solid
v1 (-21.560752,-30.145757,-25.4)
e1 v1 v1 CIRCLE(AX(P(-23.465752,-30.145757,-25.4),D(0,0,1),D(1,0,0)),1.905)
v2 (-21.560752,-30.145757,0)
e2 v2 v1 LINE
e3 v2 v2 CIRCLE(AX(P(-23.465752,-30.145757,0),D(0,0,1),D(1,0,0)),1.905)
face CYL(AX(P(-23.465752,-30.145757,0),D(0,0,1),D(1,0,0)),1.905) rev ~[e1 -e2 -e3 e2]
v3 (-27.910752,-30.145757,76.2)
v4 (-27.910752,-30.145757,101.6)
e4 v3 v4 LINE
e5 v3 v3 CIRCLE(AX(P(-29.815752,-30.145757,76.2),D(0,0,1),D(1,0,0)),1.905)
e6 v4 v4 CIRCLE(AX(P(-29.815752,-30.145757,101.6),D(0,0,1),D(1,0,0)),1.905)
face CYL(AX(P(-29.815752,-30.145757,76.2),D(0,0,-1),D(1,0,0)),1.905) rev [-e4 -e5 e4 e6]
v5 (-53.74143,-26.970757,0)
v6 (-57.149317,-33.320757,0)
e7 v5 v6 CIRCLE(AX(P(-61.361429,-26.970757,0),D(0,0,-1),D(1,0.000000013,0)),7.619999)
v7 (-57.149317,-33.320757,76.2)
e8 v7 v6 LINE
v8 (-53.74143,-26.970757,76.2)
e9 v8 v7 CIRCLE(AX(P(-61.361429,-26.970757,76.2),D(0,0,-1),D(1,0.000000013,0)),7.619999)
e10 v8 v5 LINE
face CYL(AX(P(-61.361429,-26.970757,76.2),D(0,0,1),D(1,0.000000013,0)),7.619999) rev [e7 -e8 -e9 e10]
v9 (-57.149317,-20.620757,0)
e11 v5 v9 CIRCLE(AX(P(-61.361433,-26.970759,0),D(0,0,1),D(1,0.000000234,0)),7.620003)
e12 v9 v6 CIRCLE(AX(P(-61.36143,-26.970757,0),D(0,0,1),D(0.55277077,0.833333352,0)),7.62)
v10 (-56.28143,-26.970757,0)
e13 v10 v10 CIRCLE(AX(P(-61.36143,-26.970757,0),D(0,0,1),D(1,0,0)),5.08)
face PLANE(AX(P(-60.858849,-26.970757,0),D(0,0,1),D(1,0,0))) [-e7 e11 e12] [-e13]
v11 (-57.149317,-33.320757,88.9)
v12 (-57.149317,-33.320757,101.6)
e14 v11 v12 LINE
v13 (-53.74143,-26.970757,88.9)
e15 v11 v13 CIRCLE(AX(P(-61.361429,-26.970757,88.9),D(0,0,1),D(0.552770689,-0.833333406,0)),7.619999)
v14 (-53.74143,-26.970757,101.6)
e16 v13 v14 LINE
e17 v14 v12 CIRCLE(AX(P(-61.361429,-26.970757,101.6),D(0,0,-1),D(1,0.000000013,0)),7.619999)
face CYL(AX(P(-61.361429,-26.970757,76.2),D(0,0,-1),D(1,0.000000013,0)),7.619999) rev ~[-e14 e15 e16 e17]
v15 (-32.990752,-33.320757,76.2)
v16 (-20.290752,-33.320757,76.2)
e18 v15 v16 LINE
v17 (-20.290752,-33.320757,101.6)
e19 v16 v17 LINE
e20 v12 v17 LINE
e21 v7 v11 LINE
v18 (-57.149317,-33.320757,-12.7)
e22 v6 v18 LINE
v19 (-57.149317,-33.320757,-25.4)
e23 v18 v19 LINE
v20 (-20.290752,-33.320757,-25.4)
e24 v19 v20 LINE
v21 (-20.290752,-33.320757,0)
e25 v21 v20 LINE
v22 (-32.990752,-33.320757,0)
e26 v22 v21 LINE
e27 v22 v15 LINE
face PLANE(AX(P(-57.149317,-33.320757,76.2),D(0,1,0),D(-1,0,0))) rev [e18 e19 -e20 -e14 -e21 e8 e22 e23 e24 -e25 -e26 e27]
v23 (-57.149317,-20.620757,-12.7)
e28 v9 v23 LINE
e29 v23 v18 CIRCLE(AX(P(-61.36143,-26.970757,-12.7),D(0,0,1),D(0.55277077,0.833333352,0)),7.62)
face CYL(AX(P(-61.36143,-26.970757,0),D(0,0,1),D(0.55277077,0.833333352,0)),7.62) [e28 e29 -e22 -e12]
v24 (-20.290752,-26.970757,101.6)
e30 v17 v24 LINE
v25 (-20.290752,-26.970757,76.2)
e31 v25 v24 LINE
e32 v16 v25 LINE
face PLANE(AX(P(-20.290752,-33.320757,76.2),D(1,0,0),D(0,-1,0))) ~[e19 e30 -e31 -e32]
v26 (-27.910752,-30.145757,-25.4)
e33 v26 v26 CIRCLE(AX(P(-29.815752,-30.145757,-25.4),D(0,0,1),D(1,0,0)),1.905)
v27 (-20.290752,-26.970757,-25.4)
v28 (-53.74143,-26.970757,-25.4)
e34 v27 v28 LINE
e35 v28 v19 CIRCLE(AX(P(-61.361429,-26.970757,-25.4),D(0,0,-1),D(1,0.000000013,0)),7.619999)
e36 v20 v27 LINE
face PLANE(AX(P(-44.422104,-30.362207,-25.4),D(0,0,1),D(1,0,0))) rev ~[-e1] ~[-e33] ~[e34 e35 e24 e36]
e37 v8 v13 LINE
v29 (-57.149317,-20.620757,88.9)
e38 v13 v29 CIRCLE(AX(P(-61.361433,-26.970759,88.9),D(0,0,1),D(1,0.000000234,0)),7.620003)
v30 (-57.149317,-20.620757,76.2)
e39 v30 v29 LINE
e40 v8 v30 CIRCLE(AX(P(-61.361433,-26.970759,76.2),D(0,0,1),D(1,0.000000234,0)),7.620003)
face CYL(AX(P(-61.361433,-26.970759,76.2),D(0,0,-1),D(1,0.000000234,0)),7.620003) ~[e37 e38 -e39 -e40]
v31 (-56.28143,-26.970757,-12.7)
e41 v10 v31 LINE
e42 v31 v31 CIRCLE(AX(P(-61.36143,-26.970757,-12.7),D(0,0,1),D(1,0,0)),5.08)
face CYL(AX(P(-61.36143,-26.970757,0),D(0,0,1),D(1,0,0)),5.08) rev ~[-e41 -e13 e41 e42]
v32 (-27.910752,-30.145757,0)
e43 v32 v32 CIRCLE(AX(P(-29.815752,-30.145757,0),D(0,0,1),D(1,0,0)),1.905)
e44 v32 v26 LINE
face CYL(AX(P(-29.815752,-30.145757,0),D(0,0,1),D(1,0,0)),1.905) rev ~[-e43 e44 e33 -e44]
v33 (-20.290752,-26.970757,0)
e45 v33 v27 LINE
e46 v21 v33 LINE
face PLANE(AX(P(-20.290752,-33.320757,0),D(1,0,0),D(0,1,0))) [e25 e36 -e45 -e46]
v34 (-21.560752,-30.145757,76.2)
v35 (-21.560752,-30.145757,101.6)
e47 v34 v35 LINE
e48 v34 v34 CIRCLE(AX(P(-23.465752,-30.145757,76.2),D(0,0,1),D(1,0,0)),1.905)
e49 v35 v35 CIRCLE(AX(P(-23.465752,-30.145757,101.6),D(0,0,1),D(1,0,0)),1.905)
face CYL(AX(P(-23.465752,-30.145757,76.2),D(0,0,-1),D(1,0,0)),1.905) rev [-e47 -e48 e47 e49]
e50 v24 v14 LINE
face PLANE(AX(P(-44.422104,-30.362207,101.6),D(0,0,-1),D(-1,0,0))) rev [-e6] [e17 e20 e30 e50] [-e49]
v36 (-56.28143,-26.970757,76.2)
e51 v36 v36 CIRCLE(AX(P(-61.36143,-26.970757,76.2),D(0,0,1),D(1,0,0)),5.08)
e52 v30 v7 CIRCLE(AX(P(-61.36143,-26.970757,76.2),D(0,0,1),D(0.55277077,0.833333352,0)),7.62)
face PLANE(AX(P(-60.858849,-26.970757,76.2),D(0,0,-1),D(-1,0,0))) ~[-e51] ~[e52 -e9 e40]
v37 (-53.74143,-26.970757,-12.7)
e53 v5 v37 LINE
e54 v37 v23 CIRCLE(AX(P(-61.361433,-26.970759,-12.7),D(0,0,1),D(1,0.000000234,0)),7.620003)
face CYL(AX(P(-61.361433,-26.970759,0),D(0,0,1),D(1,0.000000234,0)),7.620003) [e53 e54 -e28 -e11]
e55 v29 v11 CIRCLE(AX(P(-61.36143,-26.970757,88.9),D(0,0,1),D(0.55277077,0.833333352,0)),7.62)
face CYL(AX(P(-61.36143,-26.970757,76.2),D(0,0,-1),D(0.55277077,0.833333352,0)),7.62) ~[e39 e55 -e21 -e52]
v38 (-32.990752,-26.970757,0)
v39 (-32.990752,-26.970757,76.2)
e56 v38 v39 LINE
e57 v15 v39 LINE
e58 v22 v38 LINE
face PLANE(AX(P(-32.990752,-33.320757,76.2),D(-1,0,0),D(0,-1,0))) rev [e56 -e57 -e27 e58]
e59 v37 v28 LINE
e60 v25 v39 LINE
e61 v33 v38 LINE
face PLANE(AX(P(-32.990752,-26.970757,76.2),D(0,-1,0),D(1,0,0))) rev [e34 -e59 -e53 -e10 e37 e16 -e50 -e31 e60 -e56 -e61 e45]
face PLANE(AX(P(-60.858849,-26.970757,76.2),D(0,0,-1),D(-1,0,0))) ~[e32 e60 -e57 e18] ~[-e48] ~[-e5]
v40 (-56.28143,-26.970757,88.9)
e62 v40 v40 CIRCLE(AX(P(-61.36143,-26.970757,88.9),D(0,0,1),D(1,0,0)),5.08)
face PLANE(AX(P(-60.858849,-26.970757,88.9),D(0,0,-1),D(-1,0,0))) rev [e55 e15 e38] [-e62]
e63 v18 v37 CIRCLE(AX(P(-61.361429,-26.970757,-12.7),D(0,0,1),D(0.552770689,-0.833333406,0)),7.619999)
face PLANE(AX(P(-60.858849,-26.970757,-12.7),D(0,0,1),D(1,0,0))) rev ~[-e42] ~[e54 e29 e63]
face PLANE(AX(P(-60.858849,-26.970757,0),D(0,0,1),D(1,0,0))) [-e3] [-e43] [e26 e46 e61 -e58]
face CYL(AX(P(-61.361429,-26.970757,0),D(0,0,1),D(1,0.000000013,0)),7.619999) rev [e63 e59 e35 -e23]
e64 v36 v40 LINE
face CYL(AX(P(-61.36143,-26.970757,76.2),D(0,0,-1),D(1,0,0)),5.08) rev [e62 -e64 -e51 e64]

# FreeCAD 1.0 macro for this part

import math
import FreeCAD as App
import Part
import Sketcher
from FreeCAD import Vector
Q = App.Units.Quantity

doc = App.newDocument("Part")
body = doc.addObject("PartDesign::Body", "Body")

# Sketch on XY plane
sketch1 = body.newObject("Sketcher::SketchObject", "Sketch")
sketch1.AttachmentSupport = (doc.getObject("XY_Plane"), [""])
sketch1.MapMode = "FlatFace"
sketch1.addGeometry(Part.LineSegment(Vector(-57.1, -33.3, 0), Vector(-20.3, -33.3, 0)), False)
sketch1.addGeometry(Part.LineSegment(Vector(-20.3, -33.3, 0), Vector(-20.3, -27, 0)), False)
sketch1.addGeometry(Part.LineSegment(Vector(-20.3, -27, 0), Vector(-53.7, -27, 0)), False)
sketch1.addGeometry(Part.ArcOfCircle(Part.Circle(Vector(-61.4, -27, 0), Vector(0, 0, 1), 7.6), math.radians(-56), math.radians(0)), False)
sketch1.addGeometry(Part.Circle(Vector(-29.8, -30.1, 0), Vector(0, 0, 1), 1.9), False)
sketch1.addGeometry(Part.Circle(Vector(-23.5, -30.1, 0), Vector(0, 0, 1), 1.9), False)
sketch1.addConstraint(Sketcher.Constraint("Coincident", 0, 2, 1, 1))
sketch1.addConstraint(Sketcher.Constraint("Coincident", 1, 2, 2, 1))
sketch1.addConstraint(Sketcher.Constraint("Coincident", 2, 2, 3, 2))
sketch1.addConstraint(Sketcher.Constraint("Coincident", 3, 1, 0, 1))
sketch1.addConstraint(Sketcher.Constraint("Horizontal", 0))
sketch1.addConstraint(Sketcher.Constraint("Vertical", 1))
sketch1.addConstraint(Sketcher.Constraint("Horizontal", 2))
sketch1.addConstraint(Sketcher.Constraint("Equal", 4, 5))
sketch1.addConstraint(Sketcher.Constraint("Horizontal", 4, 3, 5, 3))
sketch1.addConstraint(Sketcher.Constraint("Horizontal", 3, 3, 1, 2))
sketch1.addConstraint(Sketcher.Constraint("Radius", 3, Q("0.3 in")))
sketch1.addConstraint(Sketcher.Constraint("Diameter", 4, Q("0.15 in")))
sketch1.addConstraint(Sketcher.Constraint("DistanceY", 1, 1, 1, 2, Q("0.25 in")))
sketch1.addConstraint(Sketcher.Constraint("DistanceX", 4, 3, 5, 3, Q("0.25 in")))
sketch1.addConstraint(Sketcher.Constraint("DistanceY", 4, 3, 3, 3, Q("0.125 in")))
sketch1.addConstraint(Sketcher.Constraint("DistanceX", 5, 3, 0, 2, Q("0.125 in")))
sketch1.addConstraint(Sketcher.Constraint("DistanceX", 0, 1, 0, 2, 36.858565))
sketch1.addConstraint(Sketcher.Constraint("DistanceX", 3, 3, -1, 1, 61.361429))
sketch1.addConstraint(Sketcher.Constraint("DistanceY", 3, 3, -1, 1, 26.970757))
pad1 = body.newObject("PartDesign::Pad", "Pad")
pad1.Profile = sketch1
pad1.Length = Q("1 in")
pad1.Reversed = True

# Sketch on XY plane
sketch2 = body.newObject("Sketcher::SketchObject", "Sketch001")
sketch2.AttachmentSupport = (doc.getObject("XY_Plane"), [""])
sketch2.MapMode = "FlatFace"
sketch2.addGeometry(Part.ArcOfCircle(Part.Circle(Vector(-61, -27, 0), Vector(0, 0, 1), 8), math.radians(56), math.radians(304)), False)
sketch2.addGeometry(Part.ArcOfCircle(Part.Circle(Vector(-61, -27, 0), Vector(0, 0, 1), 8), math.radians(-56), math.radians(0)), False)
sketch2.addGeometry(Part.ArcOfCircle(Part.Circle(Vector(-61, -27, 0), Vector(0, 0, 1), 8), math.radians(0), math.radians(56)), False)
sketch2.addGeometry(Part.Circle(Vector(-61, -27, 0), Vector(0, 0, 1), 5), False)
sketch2.addConstraint(Sketcher.Constraint("Tangent", 0, 2, 1, 1))
sketch2.addConstraint(Sketcher.Constraint("Tangent", 1, 2, 2, 1))
sketch2.addConstraint(Sketcher.Constraint("Tangent", 2, 2, 0, 1))
sketch2.addConstraint(Sketcher.Constraint("Coincident", 3, 3, 0, 3))
sketch2.addConstraint(Sketcher.Constraint("Horizontal", 3, 3, 1, 2))
sketch2.addConstraint(Sketcher.Constraint("Vertical", 0, 2, 2, 2))
sketch2.addConstraint(Sketcher.Constraint("Diameter", 3, Q("0.4 in")))
sketch2.addConstraint(Sketcher.Constraint("Radius", 0, Q("0.3 in")))
sketch2.addConstraint(Sketcher.Constraint("DistanceY", 0, 2, 1, 3, Q("0.25 in")))
sketch2.addConstraint(Sketcher.Constraint("DistanceX", 0, 3, -1, 1, 61.36143))
sketch2.addConstraint(Sketcher.Constraint("DistanceY", 2, 3, -1, 1, 26.970759))
pad2 = body.newObject("PartDesign::Pad", "Pad001")
pad2.Profile = sketch2
pad2.Length = Q("0.5 in")
pad2.Reversed = True

# Sketch on XY plane
sketch3 = body.newObject("Sketcher::SketchObject", "Sketch002")
sketch3.AttachmentSupport = (doc.getObject("XY_Plane"), [""])
sketch3.MapMode = "FlatFace"
sketch3.addGeometry(Part.LineSegment(Vector(-57, -33, 0), Vector(-33, -33, 0)), False)
sketch3.addGeometry(Part.LineSegment(Vector(-33, -33, 0), Vector(-33, -27, 0)), False)
sketch3.addGeometry(Part.LineSegment(Vector(-33, -27, 0), Vector(-54, -27, 0)), False)
sketch3.addGeometry(Part.ArcOfCircle(Part.Circle(Vector(-61, -27, 0), Vector(0, 0, 1), 8), math.radians(-56), math.radians(0)), False)
sketch3.addConstraint(Sketcher.Constraint("Coincident", 0, 2, 1, 1))
sketch3.addConstraint(Sketcher.Constraint("Coincident", 1, 2, 2, 1))
sketch3.addConstraint(Sketcher.Constraint("Coincident", 2, 2, 3, 2))
sketch3.addConstraint(Sketcher.Constraint("Coincident", 3, 1, 0, 1))
sketch3.addConstraint(Sketcher.Constraint("Horizontal", 0))
sketch3.addConstraint(Sketcher.Constraint("Vertical", 1))
sketch3.addConstraint(Sketcher.Constraint("Horizontal", 2))
sketch3.addConstraint(Sketcher.Constraint("Horizontal", 3, 3, 1, 2))
sketch3.addConstraint(Sketcher.Constraint("Radius", 3, Q("0.3 in")))
sketch3.addConstraint(Sketcher.Constraint("DistanceY", 1, 1, 1, 2, Q("0.25 in")))
sketch3.addConstraint(Sketcher.Constraint("DistanceX", 2, 2, 2, 1, 20.750678))
sketch3.addConstraint(Sketcher.Constraint("DistanceX", 3, 3, -1, 1, 61.361429))
sketch3.addConstraint(Sketcher.Constraint("DistanceY", 3, 3, -1, 1, 26.970757))
pad3 = body.newObject("PartDesign::Pad", "Pad002")
pad3.Profile = sketch3
pad3.Length = Q("1.5 in")
body2 = doc.addObject("PartDesign::Body", "Body001")
doc.recompute()

body2.BaseFeature = body
doc.recompute()

mirroring = doc.addObject("Part::Mirroring", "Mirroring")
mirroring.Source = body
mirroring.Base = Vector(-43.892507, -30.223136, 38.1)
mirroring.Normal = Vector(0, 0, 1)
body3 = doc.addObject("PartDesign::Body", "Body002")
body3.BaseFeature = mirroring
boolean = body2.newObject("PartDesign::Boolean", "Boolean")
boolean.Type = "Fuse"
boolean.addObjects([body3])
doc.recompute()
mirroring.Visibility = False

doc.recompute()
